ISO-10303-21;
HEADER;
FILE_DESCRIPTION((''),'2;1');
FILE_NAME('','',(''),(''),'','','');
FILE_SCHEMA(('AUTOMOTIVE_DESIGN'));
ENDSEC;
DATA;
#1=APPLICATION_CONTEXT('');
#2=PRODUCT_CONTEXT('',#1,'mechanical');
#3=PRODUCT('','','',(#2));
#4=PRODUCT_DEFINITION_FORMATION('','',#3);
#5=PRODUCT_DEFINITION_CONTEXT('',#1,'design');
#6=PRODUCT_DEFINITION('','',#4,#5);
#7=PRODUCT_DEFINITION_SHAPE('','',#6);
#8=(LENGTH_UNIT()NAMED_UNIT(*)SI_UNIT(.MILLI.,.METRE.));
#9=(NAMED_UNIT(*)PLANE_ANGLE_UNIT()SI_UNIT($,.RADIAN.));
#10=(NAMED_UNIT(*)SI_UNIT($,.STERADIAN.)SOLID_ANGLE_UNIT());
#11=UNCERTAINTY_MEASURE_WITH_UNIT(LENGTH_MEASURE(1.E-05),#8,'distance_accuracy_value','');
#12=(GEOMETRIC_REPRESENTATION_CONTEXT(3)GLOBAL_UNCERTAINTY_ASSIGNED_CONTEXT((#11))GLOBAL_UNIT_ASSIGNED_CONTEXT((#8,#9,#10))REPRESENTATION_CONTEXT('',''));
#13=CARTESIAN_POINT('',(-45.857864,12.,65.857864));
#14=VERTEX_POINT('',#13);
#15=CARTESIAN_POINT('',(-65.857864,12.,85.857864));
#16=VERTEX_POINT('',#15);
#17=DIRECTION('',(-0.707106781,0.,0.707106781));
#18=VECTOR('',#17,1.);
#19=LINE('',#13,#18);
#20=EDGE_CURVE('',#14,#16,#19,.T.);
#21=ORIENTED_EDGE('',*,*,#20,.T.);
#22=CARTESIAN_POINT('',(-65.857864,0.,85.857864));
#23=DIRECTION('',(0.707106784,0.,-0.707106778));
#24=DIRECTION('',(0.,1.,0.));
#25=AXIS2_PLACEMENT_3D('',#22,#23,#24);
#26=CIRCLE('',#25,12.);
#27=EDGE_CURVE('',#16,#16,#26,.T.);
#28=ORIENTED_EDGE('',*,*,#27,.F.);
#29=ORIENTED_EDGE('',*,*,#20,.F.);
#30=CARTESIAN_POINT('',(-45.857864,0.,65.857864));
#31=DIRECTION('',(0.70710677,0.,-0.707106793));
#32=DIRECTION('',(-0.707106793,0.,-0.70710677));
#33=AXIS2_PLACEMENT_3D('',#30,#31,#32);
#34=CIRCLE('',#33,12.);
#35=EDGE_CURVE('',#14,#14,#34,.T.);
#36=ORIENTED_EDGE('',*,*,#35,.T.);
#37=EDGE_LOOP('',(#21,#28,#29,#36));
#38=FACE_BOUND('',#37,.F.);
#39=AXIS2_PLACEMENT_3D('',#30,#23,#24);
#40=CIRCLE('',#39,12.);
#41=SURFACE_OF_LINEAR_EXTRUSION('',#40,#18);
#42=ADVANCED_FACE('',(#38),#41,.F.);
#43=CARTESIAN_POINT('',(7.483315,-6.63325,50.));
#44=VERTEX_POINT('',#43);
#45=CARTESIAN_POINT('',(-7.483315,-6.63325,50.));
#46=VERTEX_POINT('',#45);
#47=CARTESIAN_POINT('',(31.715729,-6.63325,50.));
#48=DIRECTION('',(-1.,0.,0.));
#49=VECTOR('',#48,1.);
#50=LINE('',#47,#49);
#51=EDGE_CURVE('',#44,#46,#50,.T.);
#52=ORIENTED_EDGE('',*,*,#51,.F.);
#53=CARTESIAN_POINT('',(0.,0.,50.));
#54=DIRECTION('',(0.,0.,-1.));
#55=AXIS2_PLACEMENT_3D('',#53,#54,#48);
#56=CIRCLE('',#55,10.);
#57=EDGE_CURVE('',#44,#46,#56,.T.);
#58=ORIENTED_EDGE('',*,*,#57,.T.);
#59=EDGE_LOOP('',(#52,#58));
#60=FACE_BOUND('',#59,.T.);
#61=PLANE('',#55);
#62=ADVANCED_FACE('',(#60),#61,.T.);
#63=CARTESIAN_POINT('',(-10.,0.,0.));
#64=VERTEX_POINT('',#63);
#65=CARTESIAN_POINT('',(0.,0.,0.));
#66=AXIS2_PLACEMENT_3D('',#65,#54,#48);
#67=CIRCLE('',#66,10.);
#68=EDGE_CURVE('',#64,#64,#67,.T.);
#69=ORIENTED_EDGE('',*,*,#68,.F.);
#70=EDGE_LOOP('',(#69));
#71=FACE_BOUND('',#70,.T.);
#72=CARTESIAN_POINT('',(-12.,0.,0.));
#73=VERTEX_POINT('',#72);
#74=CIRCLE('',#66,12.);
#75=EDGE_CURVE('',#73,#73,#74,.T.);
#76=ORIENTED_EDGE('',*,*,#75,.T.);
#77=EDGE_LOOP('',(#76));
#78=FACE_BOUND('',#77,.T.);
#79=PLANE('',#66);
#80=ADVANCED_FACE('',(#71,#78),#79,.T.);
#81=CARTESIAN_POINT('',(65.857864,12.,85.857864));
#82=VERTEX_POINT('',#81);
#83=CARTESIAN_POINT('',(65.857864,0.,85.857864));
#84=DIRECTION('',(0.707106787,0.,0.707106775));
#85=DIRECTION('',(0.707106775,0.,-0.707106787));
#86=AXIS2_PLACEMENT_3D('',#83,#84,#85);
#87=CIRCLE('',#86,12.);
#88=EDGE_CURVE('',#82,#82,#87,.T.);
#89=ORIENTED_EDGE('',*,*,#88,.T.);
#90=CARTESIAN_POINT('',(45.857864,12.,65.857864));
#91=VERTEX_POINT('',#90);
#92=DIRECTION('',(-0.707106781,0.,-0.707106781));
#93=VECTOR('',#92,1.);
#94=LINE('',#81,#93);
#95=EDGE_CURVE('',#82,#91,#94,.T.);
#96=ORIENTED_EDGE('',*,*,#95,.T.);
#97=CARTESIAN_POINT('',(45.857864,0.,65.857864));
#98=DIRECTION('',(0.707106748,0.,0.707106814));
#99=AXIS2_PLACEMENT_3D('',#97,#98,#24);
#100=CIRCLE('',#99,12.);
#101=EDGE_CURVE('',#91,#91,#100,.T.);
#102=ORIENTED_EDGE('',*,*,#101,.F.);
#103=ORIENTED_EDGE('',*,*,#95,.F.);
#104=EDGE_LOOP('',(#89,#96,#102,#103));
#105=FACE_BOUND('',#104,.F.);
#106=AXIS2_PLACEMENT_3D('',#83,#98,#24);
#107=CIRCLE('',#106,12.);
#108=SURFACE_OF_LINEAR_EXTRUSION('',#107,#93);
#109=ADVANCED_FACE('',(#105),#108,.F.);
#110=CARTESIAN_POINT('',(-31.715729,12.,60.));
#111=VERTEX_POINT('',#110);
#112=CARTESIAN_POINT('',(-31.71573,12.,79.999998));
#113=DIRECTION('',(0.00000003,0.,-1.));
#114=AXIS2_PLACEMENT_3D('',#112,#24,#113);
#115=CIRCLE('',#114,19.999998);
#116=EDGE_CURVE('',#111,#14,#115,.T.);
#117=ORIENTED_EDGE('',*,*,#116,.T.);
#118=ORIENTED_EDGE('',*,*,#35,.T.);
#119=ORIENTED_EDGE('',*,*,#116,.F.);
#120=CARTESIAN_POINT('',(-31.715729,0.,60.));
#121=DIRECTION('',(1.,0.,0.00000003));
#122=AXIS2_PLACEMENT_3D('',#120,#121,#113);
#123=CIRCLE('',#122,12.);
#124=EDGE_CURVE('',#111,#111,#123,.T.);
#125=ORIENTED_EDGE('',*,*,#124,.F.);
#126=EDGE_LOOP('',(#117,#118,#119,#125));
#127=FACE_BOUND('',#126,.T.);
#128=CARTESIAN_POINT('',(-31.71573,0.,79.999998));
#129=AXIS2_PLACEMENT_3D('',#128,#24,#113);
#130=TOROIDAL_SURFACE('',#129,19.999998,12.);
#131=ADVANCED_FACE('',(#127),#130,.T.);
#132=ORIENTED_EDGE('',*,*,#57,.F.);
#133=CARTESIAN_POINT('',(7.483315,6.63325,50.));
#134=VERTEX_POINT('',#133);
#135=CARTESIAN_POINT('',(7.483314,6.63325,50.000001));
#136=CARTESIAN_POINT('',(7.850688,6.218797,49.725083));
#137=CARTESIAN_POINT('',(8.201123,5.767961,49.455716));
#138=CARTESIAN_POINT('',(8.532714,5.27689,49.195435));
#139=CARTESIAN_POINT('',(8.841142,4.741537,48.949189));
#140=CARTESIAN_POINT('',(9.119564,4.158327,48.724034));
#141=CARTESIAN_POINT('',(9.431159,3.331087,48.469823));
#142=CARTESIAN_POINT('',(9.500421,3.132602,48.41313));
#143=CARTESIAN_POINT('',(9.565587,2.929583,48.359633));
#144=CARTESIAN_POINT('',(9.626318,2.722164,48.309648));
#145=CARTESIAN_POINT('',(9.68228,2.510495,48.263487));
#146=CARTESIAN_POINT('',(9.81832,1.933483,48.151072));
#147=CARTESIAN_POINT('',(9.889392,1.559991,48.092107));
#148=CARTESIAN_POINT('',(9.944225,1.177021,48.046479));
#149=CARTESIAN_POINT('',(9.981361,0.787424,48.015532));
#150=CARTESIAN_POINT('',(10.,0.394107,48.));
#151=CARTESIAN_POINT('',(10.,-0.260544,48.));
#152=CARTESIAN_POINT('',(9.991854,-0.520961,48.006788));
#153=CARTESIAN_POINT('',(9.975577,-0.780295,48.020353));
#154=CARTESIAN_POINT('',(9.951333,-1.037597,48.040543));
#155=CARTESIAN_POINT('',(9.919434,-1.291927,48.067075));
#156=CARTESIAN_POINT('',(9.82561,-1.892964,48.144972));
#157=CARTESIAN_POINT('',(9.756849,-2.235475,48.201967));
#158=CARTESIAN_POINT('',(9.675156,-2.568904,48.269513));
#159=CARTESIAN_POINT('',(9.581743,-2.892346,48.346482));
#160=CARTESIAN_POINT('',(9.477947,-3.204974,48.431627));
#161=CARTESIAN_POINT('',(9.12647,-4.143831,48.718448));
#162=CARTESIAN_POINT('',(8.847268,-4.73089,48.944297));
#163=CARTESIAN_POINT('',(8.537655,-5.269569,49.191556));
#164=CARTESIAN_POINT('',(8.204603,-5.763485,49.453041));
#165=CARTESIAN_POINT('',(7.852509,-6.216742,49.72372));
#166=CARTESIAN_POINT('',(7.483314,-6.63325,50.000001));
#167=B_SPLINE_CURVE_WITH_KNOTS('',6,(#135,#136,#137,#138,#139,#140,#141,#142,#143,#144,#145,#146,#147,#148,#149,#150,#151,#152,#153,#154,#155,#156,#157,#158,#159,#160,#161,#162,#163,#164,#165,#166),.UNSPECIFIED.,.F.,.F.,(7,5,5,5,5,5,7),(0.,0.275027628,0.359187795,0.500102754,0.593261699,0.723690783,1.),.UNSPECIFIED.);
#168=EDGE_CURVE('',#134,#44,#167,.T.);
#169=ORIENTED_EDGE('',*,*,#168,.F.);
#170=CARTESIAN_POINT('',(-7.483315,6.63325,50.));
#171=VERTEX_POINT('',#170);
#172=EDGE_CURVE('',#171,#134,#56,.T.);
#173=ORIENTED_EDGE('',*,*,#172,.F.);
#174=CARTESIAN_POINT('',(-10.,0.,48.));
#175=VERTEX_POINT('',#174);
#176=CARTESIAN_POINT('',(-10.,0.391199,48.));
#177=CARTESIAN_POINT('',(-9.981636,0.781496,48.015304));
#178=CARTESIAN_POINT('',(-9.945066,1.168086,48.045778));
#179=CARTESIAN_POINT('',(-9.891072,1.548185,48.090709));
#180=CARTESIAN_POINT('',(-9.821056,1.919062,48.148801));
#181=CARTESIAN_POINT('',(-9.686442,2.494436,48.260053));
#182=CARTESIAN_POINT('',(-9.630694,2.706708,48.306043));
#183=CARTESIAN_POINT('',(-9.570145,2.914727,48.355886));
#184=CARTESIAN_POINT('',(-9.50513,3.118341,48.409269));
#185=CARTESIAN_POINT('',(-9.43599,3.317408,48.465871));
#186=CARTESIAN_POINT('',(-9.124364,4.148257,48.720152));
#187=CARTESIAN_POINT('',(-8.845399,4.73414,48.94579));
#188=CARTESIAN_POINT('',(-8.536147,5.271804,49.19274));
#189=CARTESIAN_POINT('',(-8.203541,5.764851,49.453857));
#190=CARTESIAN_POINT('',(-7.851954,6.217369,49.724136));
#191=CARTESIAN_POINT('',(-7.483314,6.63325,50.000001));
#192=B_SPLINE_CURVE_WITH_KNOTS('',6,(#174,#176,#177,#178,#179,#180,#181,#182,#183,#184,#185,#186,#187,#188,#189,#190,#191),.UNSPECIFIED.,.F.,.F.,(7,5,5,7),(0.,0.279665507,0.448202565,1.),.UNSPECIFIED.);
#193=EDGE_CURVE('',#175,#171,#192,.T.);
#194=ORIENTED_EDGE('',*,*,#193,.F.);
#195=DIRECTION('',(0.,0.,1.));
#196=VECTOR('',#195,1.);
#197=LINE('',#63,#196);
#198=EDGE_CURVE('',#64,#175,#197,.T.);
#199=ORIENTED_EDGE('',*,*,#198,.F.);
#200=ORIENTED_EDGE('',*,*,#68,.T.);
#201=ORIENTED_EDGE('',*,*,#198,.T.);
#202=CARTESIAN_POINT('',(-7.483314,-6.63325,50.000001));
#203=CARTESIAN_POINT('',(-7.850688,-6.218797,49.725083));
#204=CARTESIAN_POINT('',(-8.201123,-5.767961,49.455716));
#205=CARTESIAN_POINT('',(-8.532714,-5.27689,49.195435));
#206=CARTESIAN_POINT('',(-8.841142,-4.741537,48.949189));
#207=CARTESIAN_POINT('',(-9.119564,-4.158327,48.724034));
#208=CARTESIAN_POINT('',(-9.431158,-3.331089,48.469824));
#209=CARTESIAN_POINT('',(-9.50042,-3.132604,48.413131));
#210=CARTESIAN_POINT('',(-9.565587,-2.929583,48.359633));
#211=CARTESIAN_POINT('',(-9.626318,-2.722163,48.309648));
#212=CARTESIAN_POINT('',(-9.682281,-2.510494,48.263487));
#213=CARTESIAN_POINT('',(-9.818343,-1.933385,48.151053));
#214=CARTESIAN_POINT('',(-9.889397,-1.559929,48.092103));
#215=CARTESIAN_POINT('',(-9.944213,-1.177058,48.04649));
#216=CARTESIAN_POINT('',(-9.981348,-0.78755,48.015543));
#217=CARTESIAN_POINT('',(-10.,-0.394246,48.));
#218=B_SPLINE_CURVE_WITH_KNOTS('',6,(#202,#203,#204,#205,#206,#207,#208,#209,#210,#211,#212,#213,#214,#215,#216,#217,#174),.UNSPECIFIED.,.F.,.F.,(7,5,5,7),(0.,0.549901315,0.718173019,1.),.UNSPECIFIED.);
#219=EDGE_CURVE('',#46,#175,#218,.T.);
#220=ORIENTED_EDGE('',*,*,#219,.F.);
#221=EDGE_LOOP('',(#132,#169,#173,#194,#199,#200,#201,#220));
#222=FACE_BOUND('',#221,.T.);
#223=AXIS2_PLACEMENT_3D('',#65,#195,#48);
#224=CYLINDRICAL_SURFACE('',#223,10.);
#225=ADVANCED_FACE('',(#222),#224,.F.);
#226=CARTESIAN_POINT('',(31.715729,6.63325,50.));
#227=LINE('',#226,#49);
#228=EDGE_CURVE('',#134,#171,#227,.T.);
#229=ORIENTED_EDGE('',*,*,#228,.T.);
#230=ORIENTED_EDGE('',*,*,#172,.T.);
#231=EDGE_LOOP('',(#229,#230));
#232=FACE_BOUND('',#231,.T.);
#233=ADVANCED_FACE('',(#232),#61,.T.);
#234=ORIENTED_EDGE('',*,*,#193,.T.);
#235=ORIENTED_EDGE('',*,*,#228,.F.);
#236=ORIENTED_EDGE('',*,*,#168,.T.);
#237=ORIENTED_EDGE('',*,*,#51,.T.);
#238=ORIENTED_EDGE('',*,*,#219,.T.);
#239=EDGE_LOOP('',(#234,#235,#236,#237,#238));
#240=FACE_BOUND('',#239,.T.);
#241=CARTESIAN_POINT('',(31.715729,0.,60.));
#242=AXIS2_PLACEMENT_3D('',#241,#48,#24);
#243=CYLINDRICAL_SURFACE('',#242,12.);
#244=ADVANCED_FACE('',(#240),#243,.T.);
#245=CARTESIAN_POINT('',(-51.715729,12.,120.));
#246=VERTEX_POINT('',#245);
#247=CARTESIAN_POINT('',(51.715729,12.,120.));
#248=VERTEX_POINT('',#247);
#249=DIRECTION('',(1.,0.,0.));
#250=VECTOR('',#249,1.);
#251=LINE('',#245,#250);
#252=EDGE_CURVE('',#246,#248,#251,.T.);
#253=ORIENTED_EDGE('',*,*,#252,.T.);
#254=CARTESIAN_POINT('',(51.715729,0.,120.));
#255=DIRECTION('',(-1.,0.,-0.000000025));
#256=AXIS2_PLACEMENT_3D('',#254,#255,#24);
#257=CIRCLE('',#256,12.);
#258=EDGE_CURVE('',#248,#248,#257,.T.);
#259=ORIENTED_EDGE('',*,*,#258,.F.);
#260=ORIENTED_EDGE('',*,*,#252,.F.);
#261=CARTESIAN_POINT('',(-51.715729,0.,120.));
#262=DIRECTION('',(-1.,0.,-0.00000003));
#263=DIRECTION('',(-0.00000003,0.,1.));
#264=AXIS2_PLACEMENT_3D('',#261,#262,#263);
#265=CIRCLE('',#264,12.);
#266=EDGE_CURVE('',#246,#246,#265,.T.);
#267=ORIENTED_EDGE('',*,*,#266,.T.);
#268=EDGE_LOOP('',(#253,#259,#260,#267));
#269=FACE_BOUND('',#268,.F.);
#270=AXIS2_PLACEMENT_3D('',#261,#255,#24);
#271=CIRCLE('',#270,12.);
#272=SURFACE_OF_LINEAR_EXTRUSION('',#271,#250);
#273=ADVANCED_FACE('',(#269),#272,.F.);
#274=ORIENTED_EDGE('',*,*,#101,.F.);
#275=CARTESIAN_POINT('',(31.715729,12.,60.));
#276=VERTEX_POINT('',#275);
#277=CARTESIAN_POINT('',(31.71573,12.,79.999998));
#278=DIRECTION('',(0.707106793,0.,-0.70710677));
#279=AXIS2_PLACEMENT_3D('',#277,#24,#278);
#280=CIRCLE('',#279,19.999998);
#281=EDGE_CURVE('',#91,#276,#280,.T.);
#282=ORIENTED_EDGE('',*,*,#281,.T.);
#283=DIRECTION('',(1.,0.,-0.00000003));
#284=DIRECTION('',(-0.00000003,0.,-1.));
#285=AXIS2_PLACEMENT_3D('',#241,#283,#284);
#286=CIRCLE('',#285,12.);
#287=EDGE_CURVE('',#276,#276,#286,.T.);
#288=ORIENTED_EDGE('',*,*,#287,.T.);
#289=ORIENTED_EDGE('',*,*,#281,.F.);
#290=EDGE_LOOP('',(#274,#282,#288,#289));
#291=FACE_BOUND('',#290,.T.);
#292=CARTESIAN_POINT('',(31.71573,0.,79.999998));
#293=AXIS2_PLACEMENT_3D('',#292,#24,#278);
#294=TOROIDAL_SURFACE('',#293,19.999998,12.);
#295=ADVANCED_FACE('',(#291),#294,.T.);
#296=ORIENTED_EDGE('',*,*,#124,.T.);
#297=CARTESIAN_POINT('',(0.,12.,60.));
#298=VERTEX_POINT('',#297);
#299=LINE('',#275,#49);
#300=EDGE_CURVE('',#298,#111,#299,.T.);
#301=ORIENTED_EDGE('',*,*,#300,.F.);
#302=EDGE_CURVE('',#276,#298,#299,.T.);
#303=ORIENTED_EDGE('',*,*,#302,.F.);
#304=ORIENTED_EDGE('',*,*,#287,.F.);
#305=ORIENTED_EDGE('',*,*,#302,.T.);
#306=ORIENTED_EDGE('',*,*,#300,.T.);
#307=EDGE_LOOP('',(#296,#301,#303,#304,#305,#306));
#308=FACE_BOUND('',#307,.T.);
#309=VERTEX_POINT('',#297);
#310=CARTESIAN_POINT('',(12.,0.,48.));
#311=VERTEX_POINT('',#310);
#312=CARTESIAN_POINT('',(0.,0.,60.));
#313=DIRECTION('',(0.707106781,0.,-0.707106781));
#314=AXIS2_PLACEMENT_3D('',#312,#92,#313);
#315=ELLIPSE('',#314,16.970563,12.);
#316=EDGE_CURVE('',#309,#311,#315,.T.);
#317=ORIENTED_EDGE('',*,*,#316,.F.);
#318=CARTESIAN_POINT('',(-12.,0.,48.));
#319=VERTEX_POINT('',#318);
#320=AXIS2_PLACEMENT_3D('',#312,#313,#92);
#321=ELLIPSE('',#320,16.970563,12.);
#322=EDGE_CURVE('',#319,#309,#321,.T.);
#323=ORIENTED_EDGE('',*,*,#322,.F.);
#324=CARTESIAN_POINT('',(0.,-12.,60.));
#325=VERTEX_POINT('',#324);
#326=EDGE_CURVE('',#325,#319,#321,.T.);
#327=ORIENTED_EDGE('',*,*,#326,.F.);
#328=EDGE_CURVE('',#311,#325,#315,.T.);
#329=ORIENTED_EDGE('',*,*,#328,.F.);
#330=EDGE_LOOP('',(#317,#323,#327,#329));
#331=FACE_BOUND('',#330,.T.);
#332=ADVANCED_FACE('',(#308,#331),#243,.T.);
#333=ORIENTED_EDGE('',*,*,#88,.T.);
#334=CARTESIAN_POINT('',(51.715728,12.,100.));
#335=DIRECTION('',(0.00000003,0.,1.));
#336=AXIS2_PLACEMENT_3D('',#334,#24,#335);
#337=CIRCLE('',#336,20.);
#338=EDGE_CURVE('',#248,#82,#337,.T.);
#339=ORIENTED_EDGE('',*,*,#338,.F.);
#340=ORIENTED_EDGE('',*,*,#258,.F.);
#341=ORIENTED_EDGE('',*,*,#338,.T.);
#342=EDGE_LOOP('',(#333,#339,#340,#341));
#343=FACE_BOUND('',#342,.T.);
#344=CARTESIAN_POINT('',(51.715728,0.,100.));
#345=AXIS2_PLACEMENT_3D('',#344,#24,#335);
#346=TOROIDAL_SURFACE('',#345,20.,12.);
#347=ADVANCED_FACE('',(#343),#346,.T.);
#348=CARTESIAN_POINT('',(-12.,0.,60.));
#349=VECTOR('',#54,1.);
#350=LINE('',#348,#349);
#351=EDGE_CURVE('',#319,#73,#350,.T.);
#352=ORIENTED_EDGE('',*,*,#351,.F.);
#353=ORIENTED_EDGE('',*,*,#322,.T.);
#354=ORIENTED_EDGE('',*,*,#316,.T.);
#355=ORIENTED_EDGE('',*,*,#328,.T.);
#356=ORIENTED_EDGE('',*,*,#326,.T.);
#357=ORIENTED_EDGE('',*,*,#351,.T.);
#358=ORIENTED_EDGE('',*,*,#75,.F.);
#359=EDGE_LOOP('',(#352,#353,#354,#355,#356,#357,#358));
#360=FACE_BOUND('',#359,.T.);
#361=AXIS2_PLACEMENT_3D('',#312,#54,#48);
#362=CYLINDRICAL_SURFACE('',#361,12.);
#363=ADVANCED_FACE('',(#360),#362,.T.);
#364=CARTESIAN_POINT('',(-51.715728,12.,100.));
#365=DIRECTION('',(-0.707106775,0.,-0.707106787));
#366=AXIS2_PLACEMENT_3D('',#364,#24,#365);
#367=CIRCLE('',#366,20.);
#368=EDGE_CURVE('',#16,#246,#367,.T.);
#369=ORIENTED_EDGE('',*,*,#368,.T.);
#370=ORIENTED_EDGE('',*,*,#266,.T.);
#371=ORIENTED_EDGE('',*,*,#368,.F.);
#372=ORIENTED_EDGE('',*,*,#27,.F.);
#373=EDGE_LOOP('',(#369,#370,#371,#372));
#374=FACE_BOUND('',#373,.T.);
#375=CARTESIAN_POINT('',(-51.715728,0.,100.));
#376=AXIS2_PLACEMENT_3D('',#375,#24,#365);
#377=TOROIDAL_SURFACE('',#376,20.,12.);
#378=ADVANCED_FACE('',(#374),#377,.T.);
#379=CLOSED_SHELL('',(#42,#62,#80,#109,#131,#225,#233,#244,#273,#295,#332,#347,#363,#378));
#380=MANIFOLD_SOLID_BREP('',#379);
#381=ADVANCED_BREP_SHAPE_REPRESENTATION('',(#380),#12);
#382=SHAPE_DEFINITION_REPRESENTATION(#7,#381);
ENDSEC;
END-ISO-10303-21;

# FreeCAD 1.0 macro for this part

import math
import FreeCAD as App
import Part
import Sketcher
from FreeCAD import Vector


def add_polygon(sketch, points):
    """Adds a closed chain of lines whose ends are joined by coincident constraints."""
    first, n = sketch.GeometryCount, len(points)
    for a, b in zip(points, points[1:] + points[:1]):
        sketch.addGeometry(Part.LineSegment(App.Vector(*a, 0), App.Vector(*b, 0)), False)
    for i in range(n):
        sketch.addConstraint(Sketcher.Constraint("Coincident", first + i, 2, first + (i + 1) % n, 1))

doc = App.newDocument("Part")
params = doc.addObject("Spreadsheet::Sheet", "Params")
for row, (alias, value) in enumerate([
    ("sketch1_width", "2 mm"),
    ("sketch1_width2", "10 mm"),
    ("sketch1_height", "50 mm"),
    ("revolution_angle", "360 deg"),
    ("sketch2_diameter", "24 mm"),
    ("sketch3_radius", "20 mm"),
], start=1):
    params.set(f"A{row}", alias)
    params.set(f"B{row}", "=" + value)
    params.setAlias(f"B{row}", alias)

body = doc.addObject("PartDesign::Body", "Body")

# Sketch on XZ plane
sketch1 = body.newObject("Sketcher::SketchObject", "Sketch")
sketch1.AttachmentSupport = (doc.getObject("XZ_Plane"), [""])
sketch1.MapMode = "FlatFace"
add_polygon(sketch1, [(-12, 0), (-10, 0), (-10, 50), (0, 50), (0, 60), (-12, 60)])  # lines 0-5
sketch1.addConstraint([
    Sketcher.Constraint("Horizontal", 0),
    Sketcher.Constraint("Vertical", 1),
    Sketcher.Constraint("Horizontal", 2),
    Sketcher.Constraint("Vertical", 3),
    Sketcher.Constraint("Horizontal", 4),
    Sketcher.Constraint("Vertical", 5),
    Sketcher.Constraint("PointOnObject", 0, 2, -1),
    Sketcher.Constraint("PointOnObject", 2, 2, -2),
    Sketcher.Constraint("Equal", 2, 3),
    Sketcher.Constraint("DistanceX", 0, 1, 0, 2, 2.0),
    Sketcher.Constraint("DistanceX", 2, 1, 2, 2, 10.0),
    Sketcher.Constraint("DistanceY", 1, 1, 1, 2, 50.0),
])
sketch1.setExpression("Constraints[15]", "Params.sketch1_width")
sketch1.setExpression("Constraints[16]", "Params.sketch1_width2")
sketch1.setExpression("Constraints[17]", "Params.sketch1_height")
revolution = body.newObject("PartDesign::Revolution", "Revolution")
revolution.Profile = sketch1
revolution.ReferenceAxis = (sketch1, ["V_Axis"])
revolution.setExpression("Angle", "Params.revolution_angle")

# Sketch on YZ plane
sketch2 = body.newObject("Sketcher::SketchObject", "Sketch001")
sketch2.AttachmentSupport = (doc.getObject("YZ_Plane"), [""])
sketch2.MapMode = "FlatFace"
sketch2.addGeometry(Part.Circle(Vector(0, 60, 0), Vector(0, 0, 1), 12), False)
sketch2.addConstraint([
    Sketcher.Constraint("PointOnObject", 0, 3, -2),
    Sketcher.Constraint("Diameter", 0, 24.0),
    Sketcher.Constraint("DistanceY", -1, 1, 0, 3, 60.0),
])
sketch2.setExpression("Constraints[1]", "Params.sketch2_diameter")

# Sketch on XZ plane
sketch3 = body.newObject("Sketcher::SketchObject", "Sketch002")
sketch3.AttachmentSupport = (doc.getObject("XZ_Plane"), [""])
sketch3.MapMode = "FlatFace"
sketch3.addGeometry([
    Part.ArcOfCircle(Part.Circle(Vector(-31.71573, 79.999998, 0), Vector(0, 0, 1), 19.999998), math.radians(-135.000001), math.radians(-89.999998)),  # 0
    Part.LineSegment(Vector(-45.857864, 65.857864, 0), Vector(-65.857864, 85.857864, 0)),  # 1
    Part.ArcOfCircle(Part.Circle(Vector(-51.715728, 100, 0), Vector(0, 0, 1), 20), math.radians(90.000002), math.radians(225.000001)),  # 2
    Part.LineSegment(Vector(-51.715729, 120, 0), Vector(51.715729, 120, 0)),  # 3
    Part.ArcOfCircle(Part.Circle(Vector(51.715728, 100, 0), Vector(0, 0, 1), 20), math.radians(-45.000001), math.radians(89.999998)),  # 4
    Part.LineSegment(Vector(65.857864, 85.857864, 0), Vector(45.857864, 65.857864, 0)),  # 5
    Part.ArcOfCircle(Part.Circle(Vector(31.71573, 79.999998, 0), Vector(0, 0, 1), 19.999998), math.radians(-90.000002), math.radians(-44.999999)),  # 6
    Part.LineSegment(Vector(31.715729, 60, 0), Vector(-31.715729, 60, 0)),  # 7
], False)
sketch3.addConstraint([
    Sketcher.Constraint("Tangent", 0, 1, 1, 1),
    Sketcher.Constraint("Tangent", 1, 2, 2, 2),
    Sketcher.Constraint("Tangent", 2, 1, 3, 1),
    Sketcher.Constraint("Tangent", 3, 2, 4, 2),
    Sketcher.Constraint("Tangent", 4, 1, 5, 1),
    Sketcher.Constraint("Tangent", 5, 2, 6, 2),
    Sketcher.Constraint("Tangent", 6, 1, 7, 1),
    Sketcher.Constraint("Tangent", 7, 2, 0, 2),
    Sketcher.Constraint("Horizontal", 3),
    Sketcher.Constraint("Horizontal", 7),
    Sketcher.Constraint("Equal", 2, 4),
    Sketcher.Constraint("Equal", 0, 6),
    Sketcher.Constraint("Symmetric", 1, 2, 4, 1, -2),
    Sketcher.Constraint("Perpendicular", 1, 5),
    Sketcher.Constraint("Radius", 2, 20.0),
    Sketcher.Constraint("DistanceY", -1, 1, 2, 3, 100.0),
    Sketcher.Constraint("DistanceY", -1, 1, 6, 1, 60.0),
    Sketcher.Constraint("DistanceX", 2, 3, 0, 3, 19.999999),
    Sketcher.Constraint("DistanceX", 3, 1, 3, 2, 103.431458),
])
sketch3.setExpression("Constraints[14]", "Params.sketch3_radius")
doc.recompute()

additivepipe = body.newObject("PartDesign::AdditivePipe", "AdditivePipe")
additivepipe.Profile = sketch2
additivepipe.Spine = (sketch3, ["Edge1", "Edge2", "Edge3", "Edge4", "Edge5", "Edge6", "Edge7", "Edge8"])

doc.recompute()
